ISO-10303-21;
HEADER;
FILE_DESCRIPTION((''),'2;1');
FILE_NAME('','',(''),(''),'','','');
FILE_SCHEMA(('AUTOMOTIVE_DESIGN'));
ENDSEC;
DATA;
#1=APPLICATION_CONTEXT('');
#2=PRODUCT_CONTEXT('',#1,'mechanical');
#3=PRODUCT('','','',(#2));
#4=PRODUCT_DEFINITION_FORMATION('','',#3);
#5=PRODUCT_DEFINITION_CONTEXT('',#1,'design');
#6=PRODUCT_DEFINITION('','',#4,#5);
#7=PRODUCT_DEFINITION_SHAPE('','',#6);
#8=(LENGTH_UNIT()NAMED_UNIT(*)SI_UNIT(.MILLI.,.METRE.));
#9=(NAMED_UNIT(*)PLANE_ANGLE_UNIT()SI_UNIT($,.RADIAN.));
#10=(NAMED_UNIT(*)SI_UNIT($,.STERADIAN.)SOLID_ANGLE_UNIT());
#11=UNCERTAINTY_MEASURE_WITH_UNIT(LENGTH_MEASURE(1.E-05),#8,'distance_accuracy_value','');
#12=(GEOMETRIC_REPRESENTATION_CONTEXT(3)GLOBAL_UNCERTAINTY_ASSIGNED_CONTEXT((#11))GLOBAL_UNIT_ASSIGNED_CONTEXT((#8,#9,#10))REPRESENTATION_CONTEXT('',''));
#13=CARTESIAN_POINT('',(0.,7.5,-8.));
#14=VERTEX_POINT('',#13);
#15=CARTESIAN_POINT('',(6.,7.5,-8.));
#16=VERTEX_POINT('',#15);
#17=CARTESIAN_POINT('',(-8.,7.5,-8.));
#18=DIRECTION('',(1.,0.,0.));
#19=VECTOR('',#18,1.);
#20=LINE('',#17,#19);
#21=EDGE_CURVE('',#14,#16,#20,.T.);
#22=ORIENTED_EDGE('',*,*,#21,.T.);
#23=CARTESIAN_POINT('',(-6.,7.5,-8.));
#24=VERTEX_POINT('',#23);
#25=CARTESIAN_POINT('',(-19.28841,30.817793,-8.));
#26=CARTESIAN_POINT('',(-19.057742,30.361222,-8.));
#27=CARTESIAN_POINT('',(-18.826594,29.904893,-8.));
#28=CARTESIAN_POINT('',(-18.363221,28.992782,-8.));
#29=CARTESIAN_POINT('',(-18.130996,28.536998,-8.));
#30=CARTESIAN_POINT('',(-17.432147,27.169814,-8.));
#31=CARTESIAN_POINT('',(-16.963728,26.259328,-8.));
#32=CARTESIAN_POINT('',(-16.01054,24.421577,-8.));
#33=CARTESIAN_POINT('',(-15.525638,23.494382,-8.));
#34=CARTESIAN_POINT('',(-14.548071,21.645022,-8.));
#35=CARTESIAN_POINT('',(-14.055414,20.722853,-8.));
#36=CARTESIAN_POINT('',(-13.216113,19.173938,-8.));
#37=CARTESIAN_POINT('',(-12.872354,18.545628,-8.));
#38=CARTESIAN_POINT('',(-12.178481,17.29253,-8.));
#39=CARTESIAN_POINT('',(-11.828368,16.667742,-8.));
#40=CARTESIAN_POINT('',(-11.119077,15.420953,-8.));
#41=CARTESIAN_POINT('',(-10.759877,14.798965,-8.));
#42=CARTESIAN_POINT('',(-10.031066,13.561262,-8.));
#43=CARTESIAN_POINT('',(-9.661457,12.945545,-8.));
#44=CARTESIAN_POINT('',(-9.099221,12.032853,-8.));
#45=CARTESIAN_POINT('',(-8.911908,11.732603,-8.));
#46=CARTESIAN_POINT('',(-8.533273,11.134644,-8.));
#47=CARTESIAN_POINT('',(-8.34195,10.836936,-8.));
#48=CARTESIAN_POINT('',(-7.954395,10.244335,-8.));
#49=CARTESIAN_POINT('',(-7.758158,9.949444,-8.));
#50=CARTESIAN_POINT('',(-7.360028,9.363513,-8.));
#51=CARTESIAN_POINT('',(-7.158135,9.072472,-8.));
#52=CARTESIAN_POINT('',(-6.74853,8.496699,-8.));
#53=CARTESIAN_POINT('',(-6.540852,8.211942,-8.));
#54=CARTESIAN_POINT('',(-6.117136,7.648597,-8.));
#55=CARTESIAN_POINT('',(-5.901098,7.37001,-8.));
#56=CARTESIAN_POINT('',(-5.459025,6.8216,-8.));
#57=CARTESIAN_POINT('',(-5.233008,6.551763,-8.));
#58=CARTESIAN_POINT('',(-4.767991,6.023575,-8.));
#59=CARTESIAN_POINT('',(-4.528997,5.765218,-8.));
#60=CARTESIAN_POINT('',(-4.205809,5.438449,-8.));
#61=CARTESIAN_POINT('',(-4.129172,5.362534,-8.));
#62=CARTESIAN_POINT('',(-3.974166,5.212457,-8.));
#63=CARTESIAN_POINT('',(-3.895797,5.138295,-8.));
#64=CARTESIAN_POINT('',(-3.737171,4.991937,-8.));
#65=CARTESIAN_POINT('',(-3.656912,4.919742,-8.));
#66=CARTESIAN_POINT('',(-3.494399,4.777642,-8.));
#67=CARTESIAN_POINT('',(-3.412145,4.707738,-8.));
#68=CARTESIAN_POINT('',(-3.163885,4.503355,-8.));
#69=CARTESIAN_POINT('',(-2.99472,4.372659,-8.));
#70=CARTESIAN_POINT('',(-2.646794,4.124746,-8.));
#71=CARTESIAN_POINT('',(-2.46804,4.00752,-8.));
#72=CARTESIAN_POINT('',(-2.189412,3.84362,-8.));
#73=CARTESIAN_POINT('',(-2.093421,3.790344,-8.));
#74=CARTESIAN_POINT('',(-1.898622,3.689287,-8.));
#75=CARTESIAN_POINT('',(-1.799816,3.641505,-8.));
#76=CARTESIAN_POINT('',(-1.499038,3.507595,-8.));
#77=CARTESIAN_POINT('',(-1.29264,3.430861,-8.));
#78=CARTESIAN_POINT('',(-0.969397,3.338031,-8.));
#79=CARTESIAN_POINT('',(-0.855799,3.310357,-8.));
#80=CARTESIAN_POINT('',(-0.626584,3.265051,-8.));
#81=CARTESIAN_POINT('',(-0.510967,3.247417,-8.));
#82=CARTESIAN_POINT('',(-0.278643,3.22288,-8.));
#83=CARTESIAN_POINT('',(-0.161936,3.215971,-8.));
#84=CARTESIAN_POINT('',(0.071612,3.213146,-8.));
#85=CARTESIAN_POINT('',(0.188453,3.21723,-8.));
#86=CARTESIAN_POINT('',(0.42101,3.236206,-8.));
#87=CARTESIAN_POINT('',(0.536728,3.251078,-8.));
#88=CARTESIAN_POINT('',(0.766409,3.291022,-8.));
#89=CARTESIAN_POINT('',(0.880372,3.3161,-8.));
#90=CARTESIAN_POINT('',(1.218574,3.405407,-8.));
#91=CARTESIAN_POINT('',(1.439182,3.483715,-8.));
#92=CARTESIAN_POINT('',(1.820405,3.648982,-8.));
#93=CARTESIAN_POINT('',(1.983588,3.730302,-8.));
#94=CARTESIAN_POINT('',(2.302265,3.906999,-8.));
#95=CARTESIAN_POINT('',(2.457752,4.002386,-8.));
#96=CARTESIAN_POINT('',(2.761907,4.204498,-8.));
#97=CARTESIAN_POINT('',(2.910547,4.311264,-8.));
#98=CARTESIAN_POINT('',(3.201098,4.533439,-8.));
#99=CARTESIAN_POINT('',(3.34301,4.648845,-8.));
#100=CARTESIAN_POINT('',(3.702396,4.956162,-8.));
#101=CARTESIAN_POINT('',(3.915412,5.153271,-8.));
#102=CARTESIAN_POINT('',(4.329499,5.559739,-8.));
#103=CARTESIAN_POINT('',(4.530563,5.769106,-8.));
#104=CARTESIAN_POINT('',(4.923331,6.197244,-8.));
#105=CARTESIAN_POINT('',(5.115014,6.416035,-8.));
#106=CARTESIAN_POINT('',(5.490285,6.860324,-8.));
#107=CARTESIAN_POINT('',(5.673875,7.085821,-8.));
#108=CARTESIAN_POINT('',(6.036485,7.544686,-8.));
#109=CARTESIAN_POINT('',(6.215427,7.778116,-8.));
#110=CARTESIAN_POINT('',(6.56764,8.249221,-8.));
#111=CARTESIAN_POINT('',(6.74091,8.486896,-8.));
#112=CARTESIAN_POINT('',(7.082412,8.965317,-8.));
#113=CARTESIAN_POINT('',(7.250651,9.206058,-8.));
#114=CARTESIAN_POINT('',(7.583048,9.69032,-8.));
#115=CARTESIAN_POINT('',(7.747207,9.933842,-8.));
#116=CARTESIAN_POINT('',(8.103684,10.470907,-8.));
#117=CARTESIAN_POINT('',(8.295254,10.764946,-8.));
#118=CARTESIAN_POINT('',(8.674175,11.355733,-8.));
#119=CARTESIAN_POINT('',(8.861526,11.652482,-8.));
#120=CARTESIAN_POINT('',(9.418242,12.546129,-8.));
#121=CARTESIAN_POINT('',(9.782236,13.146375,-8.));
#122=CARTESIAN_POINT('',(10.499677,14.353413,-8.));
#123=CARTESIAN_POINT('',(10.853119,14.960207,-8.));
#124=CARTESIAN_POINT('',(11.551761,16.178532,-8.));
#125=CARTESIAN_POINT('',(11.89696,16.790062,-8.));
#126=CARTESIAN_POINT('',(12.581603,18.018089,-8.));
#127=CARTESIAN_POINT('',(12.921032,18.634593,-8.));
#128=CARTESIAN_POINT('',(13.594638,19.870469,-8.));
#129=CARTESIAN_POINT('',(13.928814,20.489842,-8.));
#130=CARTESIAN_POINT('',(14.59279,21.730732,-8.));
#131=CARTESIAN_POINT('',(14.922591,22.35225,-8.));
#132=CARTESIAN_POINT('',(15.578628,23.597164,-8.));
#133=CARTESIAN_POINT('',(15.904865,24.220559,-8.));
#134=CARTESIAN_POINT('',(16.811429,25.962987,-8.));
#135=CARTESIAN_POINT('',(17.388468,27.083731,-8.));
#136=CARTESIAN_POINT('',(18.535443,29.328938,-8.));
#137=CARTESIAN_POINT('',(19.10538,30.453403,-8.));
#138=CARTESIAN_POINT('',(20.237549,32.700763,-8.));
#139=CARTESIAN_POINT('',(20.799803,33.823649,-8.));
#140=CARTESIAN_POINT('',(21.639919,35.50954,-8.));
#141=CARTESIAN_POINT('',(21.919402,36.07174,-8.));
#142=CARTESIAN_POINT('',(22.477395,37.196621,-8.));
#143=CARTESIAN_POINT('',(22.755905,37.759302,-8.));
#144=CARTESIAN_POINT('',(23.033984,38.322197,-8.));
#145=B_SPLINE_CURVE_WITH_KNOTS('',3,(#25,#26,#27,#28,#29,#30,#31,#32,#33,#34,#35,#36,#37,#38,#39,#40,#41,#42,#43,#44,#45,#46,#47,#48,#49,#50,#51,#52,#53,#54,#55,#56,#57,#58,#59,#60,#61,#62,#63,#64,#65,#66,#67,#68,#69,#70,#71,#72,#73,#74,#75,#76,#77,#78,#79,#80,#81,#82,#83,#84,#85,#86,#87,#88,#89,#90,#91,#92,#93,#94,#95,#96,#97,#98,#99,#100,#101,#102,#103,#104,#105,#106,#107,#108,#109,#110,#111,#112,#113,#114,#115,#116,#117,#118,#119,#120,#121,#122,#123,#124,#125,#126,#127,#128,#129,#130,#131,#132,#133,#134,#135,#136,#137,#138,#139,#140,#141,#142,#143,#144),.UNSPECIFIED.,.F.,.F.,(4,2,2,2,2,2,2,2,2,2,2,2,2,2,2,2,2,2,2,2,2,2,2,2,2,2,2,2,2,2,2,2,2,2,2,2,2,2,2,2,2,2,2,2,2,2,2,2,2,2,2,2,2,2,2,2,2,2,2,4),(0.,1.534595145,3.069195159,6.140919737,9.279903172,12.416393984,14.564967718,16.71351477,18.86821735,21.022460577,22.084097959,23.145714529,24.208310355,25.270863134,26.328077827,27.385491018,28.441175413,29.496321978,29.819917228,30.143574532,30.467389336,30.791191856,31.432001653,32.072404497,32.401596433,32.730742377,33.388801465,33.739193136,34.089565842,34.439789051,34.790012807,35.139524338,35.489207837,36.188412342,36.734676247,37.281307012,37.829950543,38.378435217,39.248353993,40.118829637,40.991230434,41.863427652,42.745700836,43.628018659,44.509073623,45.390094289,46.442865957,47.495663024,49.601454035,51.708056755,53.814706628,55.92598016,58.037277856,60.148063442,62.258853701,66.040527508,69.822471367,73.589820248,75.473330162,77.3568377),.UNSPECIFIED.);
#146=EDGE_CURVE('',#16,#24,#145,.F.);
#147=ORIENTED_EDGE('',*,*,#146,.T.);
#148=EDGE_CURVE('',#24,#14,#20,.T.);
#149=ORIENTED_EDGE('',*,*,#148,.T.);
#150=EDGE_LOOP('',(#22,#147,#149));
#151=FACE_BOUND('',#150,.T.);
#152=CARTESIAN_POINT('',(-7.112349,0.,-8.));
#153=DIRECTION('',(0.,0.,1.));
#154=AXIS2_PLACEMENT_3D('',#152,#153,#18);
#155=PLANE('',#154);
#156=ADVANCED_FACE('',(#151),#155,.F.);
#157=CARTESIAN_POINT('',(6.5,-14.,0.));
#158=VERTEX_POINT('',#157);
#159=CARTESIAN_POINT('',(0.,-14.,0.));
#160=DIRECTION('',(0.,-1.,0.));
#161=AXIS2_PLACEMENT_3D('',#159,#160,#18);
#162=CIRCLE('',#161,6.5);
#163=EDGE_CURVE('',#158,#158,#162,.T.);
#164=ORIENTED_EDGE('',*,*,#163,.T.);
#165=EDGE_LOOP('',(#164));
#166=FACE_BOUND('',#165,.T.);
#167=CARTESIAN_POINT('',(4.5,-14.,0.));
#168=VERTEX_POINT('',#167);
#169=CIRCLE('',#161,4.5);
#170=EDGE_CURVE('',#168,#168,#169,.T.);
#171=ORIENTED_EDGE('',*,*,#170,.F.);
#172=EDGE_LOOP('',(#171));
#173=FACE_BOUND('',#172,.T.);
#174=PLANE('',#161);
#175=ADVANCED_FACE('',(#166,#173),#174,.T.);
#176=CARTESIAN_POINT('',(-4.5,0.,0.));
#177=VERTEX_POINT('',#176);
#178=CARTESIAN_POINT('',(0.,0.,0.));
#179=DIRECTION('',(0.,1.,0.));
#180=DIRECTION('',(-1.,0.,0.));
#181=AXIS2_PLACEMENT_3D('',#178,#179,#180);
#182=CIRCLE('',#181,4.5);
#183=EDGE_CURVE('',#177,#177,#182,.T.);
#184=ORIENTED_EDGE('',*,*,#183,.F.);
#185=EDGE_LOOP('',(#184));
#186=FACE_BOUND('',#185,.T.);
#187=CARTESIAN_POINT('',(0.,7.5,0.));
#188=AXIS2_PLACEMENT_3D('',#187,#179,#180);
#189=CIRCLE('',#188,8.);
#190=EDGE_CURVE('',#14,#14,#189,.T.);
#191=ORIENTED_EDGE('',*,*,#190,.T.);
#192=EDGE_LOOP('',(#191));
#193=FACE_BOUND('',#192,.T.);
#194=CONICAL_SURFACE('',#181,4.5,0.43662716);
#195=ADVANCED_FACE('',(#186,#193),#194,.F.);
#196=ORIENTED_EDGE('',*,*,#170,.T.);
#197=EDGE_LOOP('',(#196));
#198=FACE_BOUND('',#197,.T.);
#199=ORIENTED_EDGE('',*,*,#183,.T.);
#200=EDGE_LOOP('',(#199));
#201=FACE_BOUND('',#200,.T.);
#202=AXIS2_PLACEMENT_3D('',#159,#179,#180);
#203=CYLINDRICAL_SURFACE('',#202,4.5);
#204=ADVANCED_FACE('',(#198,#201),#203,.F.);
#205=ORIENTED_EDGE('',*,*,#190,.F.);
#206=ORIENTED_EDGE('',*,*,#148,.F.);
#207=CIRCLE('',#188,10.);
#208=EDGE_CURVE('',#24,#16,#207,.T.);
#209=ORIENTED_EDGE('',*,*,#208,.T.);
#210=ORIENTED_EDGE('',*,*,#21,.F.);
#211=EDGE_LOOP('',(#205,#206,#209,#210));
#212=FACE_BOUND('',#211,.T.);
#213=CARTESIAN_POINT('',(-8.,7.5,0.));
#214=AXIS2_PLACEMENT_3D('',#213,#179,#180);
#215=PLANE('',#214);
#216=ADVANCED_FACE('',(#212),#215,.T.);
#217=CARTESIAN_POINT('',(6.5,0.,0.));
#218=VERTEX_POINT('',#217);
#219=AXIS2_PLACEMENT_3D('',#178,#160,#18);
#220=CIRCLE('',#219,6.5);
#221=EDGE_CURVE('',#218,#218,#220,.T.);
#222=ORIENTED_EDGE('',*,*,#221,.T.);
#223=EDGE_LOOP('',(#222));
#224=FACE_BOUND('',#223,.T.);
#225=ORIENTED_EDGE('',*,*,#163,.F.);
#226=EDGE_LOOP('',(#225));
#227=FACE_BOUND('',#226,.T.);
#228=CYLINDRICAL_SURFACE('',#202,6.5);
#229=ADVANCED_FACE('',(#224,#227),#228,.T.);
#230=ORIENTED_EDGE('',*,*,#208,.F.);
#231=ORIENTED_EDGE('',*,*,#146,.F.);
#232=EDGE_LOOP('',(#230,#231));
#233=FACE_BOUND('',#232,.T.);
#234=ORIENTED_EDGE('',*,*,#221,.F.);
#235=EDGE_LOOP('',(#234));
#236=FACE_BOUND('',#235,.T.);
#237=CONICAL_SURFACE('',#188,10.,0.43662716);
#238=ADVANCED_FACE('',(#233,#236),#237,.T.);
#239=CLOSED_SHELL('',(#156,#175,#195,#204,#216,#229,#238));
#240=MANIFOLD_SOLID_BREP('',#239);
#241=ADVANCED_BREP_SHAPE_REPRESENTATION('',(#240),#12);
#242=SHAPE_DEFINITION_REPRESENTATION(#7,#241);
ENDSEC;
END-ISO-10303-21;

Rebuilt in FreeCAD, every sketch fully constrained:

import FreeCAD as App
import Part
import Sketcher

V = App.Vector
Q = App.Units.Quantity

doc = App.newDocument("Part")
body = doc.addObject("PartDesign::Body", "Body")

# Sketch on XY plane
sketch1 = body.newObject("Sketcher::SketchObject", "Sketch")
sketch1.AttachmentSupport = (doc.getObject("XY_Plane"), [""])
sketch1.MapMode = "FlatFace"
sketch1.addGeometry([
    Part.LineSegment(V(-4.5, 0, 0), V(-8, 7.5, 0)),
    Part.LineSegment(V(-8, 7.5, 0), V(-10, 7.5, 0)),
    Part.LineSegment(V(-10, 7.5, 0), V(-6.5, 0, 0)),
    Part.LineSegment(V(-6.5, 0, 0), V(-4.5, 0, 0)),
], False)
sketch1.addConstraint([
    Sketcher.Constraint("Coincident", 0, 2, 1, 1),
    Sketcher.Constraint("Coincident", 1, 2, 2, 1),
    Sketcher.Constraint("Coincident", 2, 2, 3, 1),
    Sketcher.Constraint("Coincident", 3, 2, 0, 1),
    Sketcher.Constraint("Horizontal", 1),
    Sketcher.Constraint("Horizontal", 3),
    Sketcher.Constraint("PointOnObject", 2, 2, -1),
    Sketcher.Constraint("Parallel", 0, 2),
    Sketcher.Constraint("DistanceX", 1, 2, 1, 1, Q("2 mm")),
    Sketcher.Constraint("DistanceX", 0, 2, -1, 1, Q("8 mm")),
    Sketcher.Constraint("DistanceY", -1, 1, 0, 2, Q("7.5 mm")),
    Sketcher.Constraint("DistanceX", 2, 2, -1, 1, Q("6.5 mm")),
])
revolution = body.newObject("PartDesign::Revolution", "Revolution")
revolution.Profile = sketch1
revolution.ReferenceAxis = (sketch1, ["V_Axis"])
revolution.Angle = 360

# Sketch on XZ plane
sketch2 = body.newObject("Sketcher::SketchObject", "Sketch001")
sketch2.AttachmentSupport = (doc.getObject("XZ_Plane"), [""])
sketch2.MapMode = "FlatFace"
sketch2.addGeometry([
    Part.Circle(V(0, 0, 0), V(0, 0, 1), 6.5),
    Part.Circle(V(0, 0, 0), V(0, 0, 1), 4.5),
], False)
sketch2.addConstraint([
    Sketcher.Constraint("Coincident", 0, 3, -1, 1),
    Sketcher.Constraint("Coincident", 1, 3, -1, 1),
    Sketcher.Constraint("Diameter", 0, Q("13 mm")),
    Sketcher.Constraint("Diameter", 1, Q("9 mm")),
])
pad1 = body.newObject("PartDesign::Pad", "Pad")
pad1.Profile = sketch2
pad1.Length = 14

# Sketch on XZ plane
sketch3 = body.newObject("Sketcher::SketchObject", "Sketch002")
sketch3.AttachmentSupport = (doc.getObject("XZ_Plane"), [""])
sketch3.MapMode = "FlatFace"
sketch3.AttachmentOffset = App.Placement(V(0, 0, -7.5), App.Rotation())
sketch3.addGeometry([
    Part.LineSegment(V(-7.112349, -10.830488, 0), V(-7.112349, -8, 0)),
    Part.LineSegment(V(-7.112349, -8, 0), V(7.112349, -8, 0)),
    Part.LineSegment(V(7.112349, -8, 0), V(7.112349, -10.830488, 0)),
    Part.LineSegment(V(7.112349, -10.830488, 0), V(-7.112349, -10.830488, 0)),
], False)
sketch3.addConstraint([
    Sketcher.Constraint("Coincident", 0, 2, 1, 1),
    Sketcher.Constraint("Coincident", 1, 2, 2, 1),
    Sketcher.Constraint("Coincident", 2, 2, 3, 1),
    Sketcher.Constraint("Coincident", 3, 2, 0, 1),
    Sketcher.Constraint("Vertical", 0),
    Sketcher.Constraint("Horizontal", 1),
    Sketcher.Constraint("Vertical", 2),
    Sketcher.Constraint("Horizontal", 3),
    Sketcher.Constraint("DistanceY", 0, 2, -1, 1, Q("8 mm")),
    Sketcher.Constraint("DistanceX", 1, 1, 1, 2, Q("14.224698 mm")),
    Sketcher.Constraint("DistanceY", 0, 1, 0, 2, Q("2.830488 mm")),
    Sketcher.Constraint("DistanceX", 0, 2, -1, 1, Q("7.112349 mm")),
])
pocket1 = body.newObject("PartDesign::Pocket", "Pocket")
pocket1.Profile = sketch3
pocket1.Length = 7.5
pocket1.Reversed = True

doc.recompute()
